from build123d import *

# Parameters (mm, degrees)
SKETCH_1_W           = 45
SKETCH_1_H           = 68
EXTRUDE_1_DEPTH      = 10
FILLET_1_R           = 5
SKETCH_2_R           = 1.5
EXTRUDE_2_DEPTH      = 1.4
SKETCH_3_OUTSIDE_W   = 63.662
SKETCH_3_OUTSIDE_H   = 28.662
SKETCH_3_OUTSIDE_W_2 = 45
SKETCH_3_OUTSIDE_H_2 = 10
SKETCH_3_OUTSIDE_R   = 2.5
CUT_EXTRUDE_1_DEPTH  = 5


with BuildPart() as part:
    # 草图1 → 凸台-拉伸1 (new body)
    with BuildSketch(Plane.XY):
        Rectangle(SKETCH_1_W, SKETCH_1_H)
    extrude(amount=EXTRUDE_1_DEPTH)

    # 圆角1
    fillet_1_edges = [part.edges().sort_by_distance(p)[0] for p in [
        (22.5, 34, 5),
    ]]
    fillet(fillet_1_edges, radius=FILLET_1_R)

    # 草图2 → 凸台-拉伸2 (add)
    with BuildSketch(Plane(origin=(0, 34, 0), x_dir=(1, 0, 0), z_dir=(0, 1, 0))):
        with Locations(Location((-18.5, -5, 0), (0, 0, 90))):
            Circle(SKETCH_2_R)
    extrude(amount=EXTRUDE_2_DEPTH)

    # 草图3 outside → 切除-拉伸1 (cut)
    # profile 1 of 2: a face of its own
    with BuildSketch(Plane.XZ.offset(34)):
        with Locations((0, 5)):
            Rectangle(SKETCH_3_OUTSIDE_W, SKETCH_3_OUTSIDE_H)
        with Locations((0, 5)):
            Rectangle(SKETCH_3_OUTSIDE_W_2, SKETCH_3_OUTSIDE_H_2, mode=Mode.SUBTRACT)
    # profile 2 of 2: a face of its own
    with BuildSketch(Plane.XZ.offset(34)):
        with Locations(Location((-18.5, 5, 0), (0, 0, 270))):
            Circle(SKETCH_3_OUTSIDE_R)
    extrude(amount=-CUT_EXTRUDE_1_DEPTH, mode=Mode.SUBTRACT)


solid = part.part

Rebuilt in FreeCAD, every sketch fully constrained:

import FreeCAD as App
import Part
import Sketcher

V = App.Vector
Q = App.Units.Quantity


def edges_at(feature, points):
    """Names of the edges that pass closest to the given points."""
    edges = feature.Shape.Edges
    near = lambda p: min(range(len(edges)), key=lambda i: edges[i].distToShape(Part.Vertex(*p))[0])
    return sorted({f"Edge{near(p) + 1}" for p in points})


def add_polygon(sketch, points):
    """Adds a closed chain of lines whose ends are joined by coincident constraints."""
    first, n = sketch.GeometryCount, len(points)
    for a, b in zip(points, points[1:] + points[:1]):
        sketch.addGeometry(Part.LineSegment(App.Vector(*a, 0), App.Vector(*b, 0)), False)
    for i in range(n):
        sketch.addConstraint(Sketcher.Constraint("Coincident", first + i, 2, first + (i + 1) % n, 1))

doc = App.newDocument("Part")
body = doc.addObject("PartDesign::Body", "Body")

sketch1 = body.newObject("Sketcher::SketchObject", "Sketch")
sketch1.AttachmentSupport = (doc.getObject("XY_Plane"), [""])
sketch1.MapMode = "FlatFace"
add_polygon(sketch1, [(-22, 34), (-22, -34), (22, -34), (22, 34)])
sketch1.addConstraint([
    Sketcher.Constraint("Vertical", 0),
    Sketcher.Constraint("Horizontal", 1),
    Sketcher.Constraint("Vertical", 2),
    Sketcher.Constraint("Horizontal", 3),
    Sketcher.Constraint("Symmetric", 0, 2, 2, 2, -1, 1),
    Sketcher.Constraint("DistanceX", 1, 1, 1, 2, Q("45 mm")),
    Sketcher.Constraint("DistanceY", 0, 2, 0, 1, Q("68 mm")),
])
pad1 = body.newObject("PartDesign::Pad", "Pad")
pad1.Profile = sketch1
pad1.Length = 10
doc.recompute()

fillet = body.newObject("PartDesign::Fillet", "Fillet")
fillet.Base = (pad1, edges_at(pad1, [(22.5, 34, 5)]))
fillet.Radius = 5

sketch2 = body.newObject("Sketcher::SketchObject", "Sketch001")
sketch2.AttachmentSupport = (doc.getObject("XZ_Plane"), [""])
sketch2.MapMode = "FlatFace"
sketch2.AttachmentOffset = App.Placement(V(0, 0, -34), App.Rotation())
sketch2.addGeometry(Part.Circle(V(-18.5, 5, 0), V(0, 0, 1), 1.5), False)
sketch2.addConstraint([
    Sketcher.Constraint("Diameter", 0, Q("3 mm")),
    Sketcher.Constraint("DistanceY", -1, 1, 0, 3, Q("5 mm")),
    Sketcher.Constraint("DistanceX", 0, 3, -1, 1, Q("18.5 mm")),
])
pad2 = body.newObject("PartDesign::Pad", "Pad001")
pad2.Profile = sketch2
pad2.Length = 1.4
pad2.Reversed = True

sketch3 = body.newObject("Sketcher::SketchObject", "Sketch002")
sketch3.AttachmentSupport = (doc.getObject("XZ_Plane"), [""])
sketch3.MapMode = "FlatFace"
sketch3.AttachmentOffset = App.Placement(V(0, 0, 34), App.Rotation())
add_polygon(sketch3, [(-31.8, 19.3), (-31.8, -9.3), (31.8, -9.3), (31.8, 19.3)])
add_polygon(sketch3, [(22.5, 0), (-22.5, 0), (-22.5, 10), (22.5, 10)])
sketch3.addGeometry(Part.Circle(V(-18.5, 5, 0), V(0, 0, 1), 2.5), False)
sketch3.addConstraint([
    Sketcher.Constraint("Vertical", 0),
    Sketcher.Constraint("Horizontal", 1),
    Sketcher.Constraint("Vertical", 2),
    Sketcher.Constraint("Horizontal", 3),
    Sketcher.Constraint("Horizontal", 4),
    Sketcher.Constraint("Vertical", 5),
    Sketcher.Constraint("Horizontal", 6),
    Sketcher.Constraint("Vertical", 7),
    Sketcher.Constraint("Symmetric", 4, 2, 7, 2, -1, 1),
    Sketcher.Constraint("Diameter", 8, Q("5 mm")),
    Sketcher.Constraint("DistanceX", 4, 2, 4, 1, Q("45 mm")),
    Sketcher.Constraint("DistanceY", 5, 1, 5, 2, Q("10 mm")),
    Sketcher.Constraint("DistanceY", -1, 1, 8, 3, Q("5 mm")),
    Sketcher.Constraint("DistanceX", 4, 2, 8, 3, Q("4 mm")),
    Sketcher.Constraint("DistanceX", 1, 1, 1, 2, Q("63.662 mm")),
    Sketcher.Constraint("DistanceY", 0, 2, 0, 1, Q("28.662 mm")),
    Sketcher.Constraint("DistanceX", 0, 2, -1, 1, Q("31.831 mm")),
    Sketcher.Constraint("DistanceY", 0, 2, -1, 1, Q("9.331 mm")),
])
pocket1 = body.newObject("PartDesign::Pocket", "Pocket")
pocket1.Profile = sketch3
pocket1.Length = 5

doc.recompute()
